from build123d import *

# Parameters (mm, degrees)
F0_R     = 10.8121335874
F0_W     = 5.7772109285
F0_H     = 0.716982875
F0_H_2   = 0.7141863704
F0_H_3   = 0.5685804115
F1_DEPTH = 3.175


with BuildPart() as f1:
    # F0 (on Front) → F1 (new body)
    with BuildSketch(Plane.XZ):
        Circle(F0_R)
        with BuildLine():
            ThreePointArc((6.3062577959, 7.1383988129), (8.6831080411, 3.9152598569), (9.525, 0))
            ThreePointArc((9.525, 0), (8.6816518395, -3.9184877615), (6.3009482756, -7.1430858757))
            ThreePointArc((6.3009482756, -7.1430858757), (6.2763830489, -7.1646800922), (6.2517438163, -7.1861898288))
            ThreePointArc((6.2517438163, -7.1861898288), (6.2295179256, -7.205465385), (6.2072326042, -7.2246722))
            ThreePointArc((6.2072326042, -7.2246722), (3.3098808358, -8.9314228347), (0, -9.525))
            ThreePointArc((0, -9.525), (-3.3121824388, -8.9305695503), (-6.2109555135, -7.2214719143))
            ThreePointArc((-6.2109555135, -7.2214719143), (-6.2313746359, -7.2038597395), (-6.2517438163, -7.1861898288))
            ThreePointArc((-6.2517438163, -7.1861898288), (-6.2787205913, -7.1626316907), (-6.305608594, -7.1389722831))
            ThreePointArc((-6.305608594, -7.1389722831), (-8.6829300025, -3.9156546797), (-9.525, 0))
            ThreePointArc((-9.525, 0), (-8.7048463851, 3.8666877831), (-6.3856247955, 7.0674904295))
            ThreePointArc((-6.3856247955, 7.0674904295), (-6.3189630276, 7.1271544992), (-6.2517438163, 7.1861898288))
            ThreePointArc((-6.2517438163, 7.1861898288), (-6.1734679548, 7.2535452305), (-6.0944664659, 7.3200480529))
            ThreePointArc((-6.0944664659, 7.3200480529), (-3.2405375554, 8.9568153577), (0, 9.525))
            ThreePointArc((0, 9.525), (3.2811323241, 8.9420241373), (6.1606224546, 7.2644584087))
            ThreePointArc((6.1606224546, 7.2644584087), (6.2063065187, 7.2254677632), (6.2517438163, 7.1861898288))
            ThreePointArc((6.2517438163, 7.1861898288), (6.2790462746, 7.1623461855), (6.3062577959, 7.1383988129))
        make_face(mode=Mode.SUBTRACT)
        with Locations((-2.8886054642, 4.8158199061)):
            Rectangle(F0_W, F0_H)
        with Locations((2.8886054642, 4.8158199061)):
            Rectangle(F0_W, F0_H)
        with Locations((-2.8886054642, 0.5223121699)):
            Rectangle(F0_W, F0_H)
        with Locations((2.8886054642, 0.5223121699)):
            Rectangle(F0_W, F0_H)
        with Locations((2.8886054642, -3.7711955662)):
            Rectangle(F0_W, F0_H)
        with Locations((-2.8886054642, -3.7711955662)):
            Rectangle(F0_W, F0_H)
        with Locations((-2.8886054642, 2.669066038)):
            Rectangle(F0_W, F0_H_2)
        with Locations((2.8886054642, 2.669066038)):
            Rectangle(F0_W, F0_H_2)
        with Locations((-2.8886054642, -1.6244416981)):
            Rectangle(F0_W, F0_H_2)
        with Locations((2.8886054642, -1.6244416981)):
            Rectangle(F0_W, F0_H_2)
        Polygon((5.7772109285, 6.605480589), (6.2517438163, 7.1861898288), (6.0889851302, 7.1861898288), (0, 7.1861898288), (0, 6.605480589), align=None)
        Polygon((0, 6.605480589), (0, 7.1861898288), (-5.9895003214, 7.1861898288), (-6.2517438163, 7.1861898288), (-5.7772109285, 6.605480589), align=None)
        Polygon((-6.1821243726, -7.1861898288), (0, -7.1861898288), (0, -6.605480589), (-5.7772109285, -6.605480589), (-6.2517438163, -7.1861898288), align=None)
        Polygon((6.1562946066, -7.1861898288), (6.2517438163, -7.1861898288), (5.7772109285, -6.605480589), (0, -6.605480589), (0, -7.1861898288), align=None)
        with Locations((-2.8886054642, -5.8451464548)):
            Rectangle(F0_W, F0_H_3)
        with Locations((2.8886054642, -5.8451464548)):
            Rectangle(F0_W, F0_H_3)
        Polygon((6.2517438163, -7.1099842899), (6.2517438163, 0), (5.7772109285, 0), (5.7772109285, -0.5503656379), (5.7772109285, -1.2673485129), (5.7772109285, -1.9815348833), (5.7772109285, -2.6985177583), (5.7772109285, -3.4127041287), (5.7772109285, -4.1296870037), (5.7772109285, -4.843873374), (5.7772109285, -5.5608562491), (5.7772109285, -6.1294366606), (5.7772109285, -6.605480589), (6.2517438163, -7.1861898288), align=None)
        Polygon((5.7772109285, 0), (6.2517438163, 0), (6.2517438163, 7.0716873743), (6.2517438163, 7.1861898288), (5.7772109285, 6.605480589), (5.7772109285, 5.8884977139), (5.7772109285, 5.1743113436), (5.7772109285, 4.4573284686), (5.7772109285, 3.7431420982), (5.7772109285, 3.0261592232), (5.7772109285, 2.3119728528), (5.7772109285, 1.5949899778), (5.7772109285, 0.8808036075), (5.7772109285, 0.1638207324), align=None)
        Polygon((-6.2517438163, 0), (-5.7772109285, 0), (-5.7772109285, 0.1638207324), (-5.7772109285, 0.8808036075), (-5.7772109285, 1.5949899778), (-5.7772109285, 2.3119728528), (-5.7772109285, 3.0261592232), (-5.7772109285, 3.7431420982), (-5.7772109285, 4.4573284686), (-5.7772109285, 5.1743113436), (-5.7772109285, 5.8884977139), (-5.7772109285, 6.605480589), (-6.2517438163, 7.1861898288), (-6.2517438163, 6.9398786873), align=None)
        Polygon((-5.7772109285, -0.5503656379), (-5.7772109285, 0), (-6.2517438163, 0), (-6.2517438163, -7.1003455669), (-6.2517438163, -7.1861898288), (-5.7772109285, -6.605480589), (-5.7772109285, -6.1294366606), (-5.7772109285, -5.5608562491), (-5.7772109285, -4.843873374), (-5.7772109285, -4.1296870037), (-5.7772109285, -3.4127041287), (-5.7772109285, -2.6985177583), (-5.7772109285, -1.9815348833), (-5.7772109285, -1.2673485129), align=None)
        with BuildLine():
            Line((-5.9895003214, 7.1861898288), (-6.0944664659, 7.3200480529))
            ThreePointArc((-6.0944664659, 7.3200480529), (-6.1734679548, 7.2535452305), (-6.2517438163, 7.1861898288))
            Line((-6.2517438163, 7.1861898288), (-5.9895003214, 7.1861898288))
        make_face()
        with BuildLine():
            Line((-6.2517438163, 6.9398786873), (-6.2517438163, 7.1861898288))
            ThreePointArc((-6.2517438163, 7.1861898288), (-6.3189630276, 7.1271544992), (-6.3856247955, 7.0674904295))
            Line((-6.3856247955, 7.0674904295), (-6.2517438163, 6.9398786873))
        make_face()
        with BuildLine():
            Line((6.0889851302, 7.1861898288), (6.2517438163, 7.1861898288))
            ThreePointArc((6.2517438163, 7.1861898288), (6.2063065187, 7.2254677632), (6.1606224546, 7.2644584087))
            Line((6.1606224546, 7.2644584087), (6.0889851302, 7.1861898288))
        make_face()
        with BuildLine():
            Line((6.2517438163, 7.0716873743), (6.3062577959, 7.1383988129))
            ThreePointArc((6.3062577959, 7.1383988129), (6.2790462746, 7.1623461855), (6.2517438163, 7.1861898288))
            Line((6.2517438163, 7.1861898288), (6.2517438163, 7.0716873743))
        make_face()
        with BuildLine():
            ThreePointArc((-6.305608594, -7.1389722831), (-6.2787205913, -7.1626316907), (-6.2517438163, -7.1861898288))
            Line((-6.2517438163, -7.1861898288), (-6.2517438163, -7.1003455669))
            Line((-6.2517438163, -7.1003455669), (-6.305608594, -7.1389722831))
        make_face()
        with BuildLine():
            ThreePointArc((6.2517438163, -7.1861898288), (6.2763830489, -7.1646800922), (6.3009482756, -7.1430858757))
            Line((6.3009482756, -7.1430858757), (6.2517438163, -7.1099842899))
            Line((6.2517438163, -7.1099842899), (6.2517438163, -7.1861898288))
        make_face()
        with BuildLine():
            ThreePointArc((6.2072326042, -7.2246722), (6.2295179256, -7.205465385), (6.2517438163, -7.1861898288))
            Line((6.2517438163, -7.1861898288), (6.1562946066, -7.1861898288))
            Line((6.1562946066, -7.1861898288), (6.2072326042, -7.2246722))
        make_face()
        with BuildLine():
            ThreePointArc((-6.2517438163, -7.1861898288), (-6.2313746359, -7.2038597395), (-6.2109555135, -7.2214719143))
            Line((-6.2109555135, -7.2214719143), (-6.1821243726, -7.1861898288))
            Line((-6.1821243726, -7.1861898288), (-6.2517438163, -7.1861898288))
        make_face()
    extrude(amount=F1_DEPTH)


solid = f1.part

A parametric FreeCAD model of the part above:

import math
import FreeCAD as App
import Part
import Sketcher
Q = App.Units.Quantity


def add_polygon(sketch, points):
    """Adds a closed chain of lines whose ends are joined by coincident constraints."""
    first, n = sketch.GeometryCount, len(points)
    for a, b in zip(points, points[1:] + points[:1]):
        sketch.addGeometry(Part.LineSegment(App.Vector(*a, 0), App.Vector(*b, 0)), False)
    for i in range(n):
        sketch.addConstraint(Sketcher.Constraint("Coincident", first + i, 2, first + (i + 1) % n, 1))

doc = App.newDocument("Part")
params = doc.addObject("Spreadsheet::Sheet", "Params")
for row, (alias, value) in enumerate([
    ("sketch1_radius", "0.375 in"),
    ("pad1_length", "0.125 in"),
], start=1):
    params.set(f"A{row}", alias)
    params.set(f"B{row}", "=" + value)
    params.setAlias(f"B{row}", alias)

body = doc.addObject("PartDesign::Body", "Body")

sketch1 = body.newObject("Sketcher::SketchObject", "Sketch")
sketch1.AttachmentSupport = (doc.getObject("XZ_Plane"), [""])
sketch1.MapMode = "FlatFace"
sketch1.addGeometry(Part.Circle(App.Vector(0, 0, 0), App.Vector(0, 0, 1), 10.812), False)
sketch1.addGeometry(Part.LineSegment(App.Vector(-6.252, 6.94, 0), App.Vector(-6.252, -7.1, 0)), False)
sketch1.addGeometry(Part.LineSegment(App.Vector(-6.252, -7.1, 0), App.Vector(-6.306, -7.139, 0)), False)
sketch1.addGeometry(Part.ArcOfCircle(Part.Circle(App.Vector(0, 0, 0), App.Vector(0, 0, 1), 9.525), math.radians(180), math.radians(229)), False)
sketch1.addGeometry(Part.ArcOfCircle(Part.Circle(App.Vector(0, 0, 0), App.Vector(0, 0, 1), 9.525), math.radians(132), math.radians(180)), False)
sketch1.addGeometry(Part.LineSegment(App.Vector(-6.386, 7.067, 0), App.Vector(-6.252, 6.94, 0)), False)
sketch1.addGeometry(Part.LineSegment(App.Vector(-6.182, -7.186, 0), App.Vector(6.156, -7.186, 0)), False)
sketch1.addGeometry(Part.LineSegment(App.Vector(6.156, -7.186, 0), App.Vector(6.207, -7.225, 0)), False)
sketch1.addGeometry(Part.ArcOfCircle(Part.Circle(App.Vector(0, 0, 0), App.Vector(0, 0, 1), 9.525), math.radians(-90), math.radians(-49)), False)
sketch1.addGeometry(Part.ArcOfCircle(Part.Circle(App.Vector(0, 0, 0), App.Vector(0, 0, 1), 9.525), math.radians(-131), math.radians(-90)), False)
sketch1.addGeometry(Part.LineSegment(App.Vector(-6.211, -7.221, 0), App.Vector(-6.182, -7.186, 0)), False)
add_polygon(sketch1, [(-5.777, -6.129), (5.777, -6.129), (5.777, -6.605), (-5.777, -6.605)])
add_polygon(sketch1, [(-5.777, -4.13), (5.777, -4.13), (5.777, -5.561), (-5.777, -5.561)])
add_polygon(sketch1, [(-5.777, -1.982), (5.777, -1.982), (5.777, -3.413), (-5.777, -3.413)])
add_polygon(sketch1, [(-5.777, 0.164), (5.777, 0.164), (5.777, 0), (5.777, -1.267), (-5.777, -1.267)])
sketch1.addGeometry(Part.ArcOfCircle(Part.Circle(App.Vector(0, 0, 0), App.Vector(0, 0, 1), 9.525), math.radians(-49), math.radians(0)), False)
sketch1.addGeometry(Part.LineSegment(App.Vector(6.301, -7.143, 0), App.Vector(6.252, -7.11, 0)), False)
sketch1.addGeometry(Part.LineSegment(App.Vector(6.252, -7.11, 0), App.Vector(6.252, 7.072, 0)), False)
sketch1.addGeometry(Part.LineSegment(App.Vector(6.252, 7.072, 0), App.Vector(6.306, 7.138, 0)), False)
sketch1.addGeometry(Part.ArcOfCircle(Part.Circle(App.Vector(0, 0, 0), App.Vector(0, 0, 1), 9.525), math.radians(0), math.radians(49)), False)
add_polygon(sketch1, [(-5.777, 2.312), (5.777, 2.312), (5.777, 0.881), (-5.777, 0.881)])
add_polygon(sketch1, [(-5.777, 4.457), (5.777, 4.457), (5.777, 3.026), (-5.777, 3.026)])
add_polygon(sketch1, [(-5.777, 5.174), (-5.777, 6.605), (5.777, 6.605), (5.777, 5.174)])
sketch1.addGeometry(Part.ArcOfCircle(Part.Circle(App.Vector(0, 0, 0), App.Vector(0, 0, 1), 9.525), math.radians(50), math.radians(90)), False)
sketch1.addGeometry(Part.LineSegment(App.Vector(6.161, 7.264, 0), App.Vector(6.089, 7.186, 0)), False)
sketch1.addGeometry(Part.LineSegment(App.Vector(6.089, 7.186, 0), App.Vector(-5.99, 7.186, 0)), False)
sketch1.addGeometry(Part.LineSegment(App.Vector(-5.99, 7.186, 0), App.Vector(-6.094, 7.32, 0)), False)
sketch1.addGeometry(Part.ArcOfCircle(Part.Circle(App.Vector(0, 0, 0), App.Vector(0, 0, 1), 9.525), math.radians(90), math.radians(130)), False)
sketch1.addConstraint([
    Sketcher.Constraint("Coincident", 1, 2, 2, 1),
    Sketcher.Constraint("Coincident", 2, 2, 3, 2),
    Sketcher.Constraint("Tangent", 3, 1, 4, 2),
    Sketcher.Constraint("Coincident", 4, 1, 5, 1),
    Sketcher.Constraint("Coincident", 5, 2, 1, 1),
    Sketcher.Constraint("Coincident", 6, 2, 7, 1),
    Sketcher.Constraint("Coincident", 7, 2, 8, 2),
    Sketcher.Constraint("Tangent", 8, 1, 9, 2),
    Sketcher.Constraint("Coincident", 9, 1, 10, 1),
    Sketcher.Constraint("Coincident", 10, 2, 6, 1),
    Sketcher.Constraint("Coincident", 28, 1, 29, 1),
    Sketcher.Constraint("Coincident", 29, 2, 30, 1),
    Sketcher.Constraint("Coincident", 30, 2, 31, 1),
    Sketcher.Constraint("Coincident", 31, 2, 32, 2),
    Sketcher.Constraint("Tangent", 32, 1, 28, 2),
    Sketcher.Constraint("Coincident", 45, 1, 46, 1),
    Sketcher.Constraint("Coincident", 46, 2, 47, 1),
    Sketcher.Constraint("Coincident", 47, 2, 48, 1),
    Sketcher.Constraint("Coincident", 48, 2, 49, 2),
    Sketcher.Constraint("Tangent", 49, 1, 45, 2),
    Sketcher.Constraint("Vertical", 1),
    Sketcher.Constraint("Horizontal", 6),
    Sketcher.Constraint("Horizontal", 11),
    Sketcher.Constraint("Vertical", 12),
    Sketcher.Constraint("Horizontal", 13),
    Sketcher.Constraint("Vertical", 14),
    Sketcher.Constraint("Horizontal", 15),
    Sketcher.Constraint("Vertical", 16),
    Sketcher.Constraint("Horizontal", 17),
    Sketcher.Constraint("Vertical", 18),
    Sketcher.Constraint("Horizontal", 19),
    Sketcher.Constraint("Vertical", 20),
    Sketcher.Constraint("Horizontal", 21),
    Sketcher.Constraint("Vertical", 22),
    Sketcher.Constraint("Horizontal", 23),
    Sketcher.Constraint("Vertical", 24),
    Sketcher.Constraint("Vertical", 25),
    Sketcher.Constraint("Horizontal", 26),
    Sketcher.Constraint("Vertical", 27),
    Sketcher.Constraint("Vertical", 30),
    Sketcher.Constraint("Horizontal", 33),
    Sketcher.Constraint("Vertical", 34),
    Sketcher.Constraint("Horizontal", 35),
    Sketcher.Constraint("Vertical", 36),
    Sketcher.Constraint("Horizontal", 37),
    Sketcher.Constraint("Vertical", 38),
    Sketcher.Constraint("Horizontal", 39),
    Sketcher.Constraint("Vertical", 40),
    Sketcher.Constraint("Vertical", 41),
    Sketcher.Constraint("Horizontal", 42),
    Sketcher.Constraint("Vertical", 43),
    Sketcher.Constraint("Horizontal", 44),
    Sketcher.Constraint("Horizontal", 47),
    Sketcher.Constraint("Coincident", 0, 3, -1, 1),
    Sketcher.Constraint("Coincident", 3, 3, -1, 1),
    Sketcher.Constraint("Coincident", 8, 3, -1, 1),
    Sketcher.Constraint("Coincident", 28, 3, -1, 1),
    Sketcher.Constraint("Coincident", 45, 3, -1, 1),
    Sketcher.Constraint("Equal", 3, 4),
    Sketcher.Constraint("Equal", 4, 8),
    Sketcher.Constraint("Equal", 8, 9),
    Sketcher.Constraint("Equal", 9, 28),
    Sketcher.Constraint("Equal", 28, 32),
    Sketcher.Constraint("Equal", 32, 45),
    Sketcher.Constraint("Equal", 45, 49),
    Sketcher.Constraint("Symmetric", 12, 2, 41, 2, -1, 1),
    Sketcher.Constraint("PointOnObject", 3, 1, -1),
    Sketcher.Constraint("PointOnObject", 8, 1, -2),
    Sketcher.Constraint("PointOnObject", 24, 2, -1),
    Sketcher.Constraint("PointOnObject", 32, 1, -1),
    Sketcher.Constraint("PointOnObject", 49, 1, -2),
    Sketcher.Constraint("Parallel", 10, 31),
    Sketcher.Constraint("Vertical", 12, 2, 15, 2),
    Sketcher.Constraint("Vertical", 14, 2, 17, 2),
    Sketcher.Constraint("Vertical", 16, 2, 19, 2),
    Sketcher.Constraint("Vertical", 18, 2, 21, 2),
    Sketcher.Constraint("Vertical", 20, 2, 23, 2),
    Sketcher.Constraint("Vertical", 22, 2, 26, 2),
    Sketcher.Constraint("Vertical", 25, 2, 33, 2),
    Sketcher.Constraint("Vertical", 27, 2, 35, 2),
    Sketcher.Constraint("Vertical", 34, 2, 37, 2),
    Sketcher.Constraint("Vertical", 36, 2, 39, 2),
    Sketcher.Constraint("Vertical", 40, 2, 41, 2),
    Sketcher.Constraint("Vertical", 38, 2, 42, 2),
    Sketcher.Constraint("Equal", 18, 20),
    Sketcher.Constraint("Equal", 22, 27),
    Sketcher.Constraint("Equal", 27, 34),
    Sketcher.Constraint("Equal", 36, 38),
    Sketcher.Constraint("Equal", 40, 41),
    Sketcher.Constraint("Radius", 3, Q("0.375 in")),
    Sketcher.Constraint("Diameter", 0, 21.624267),
    Sketcher.Constraint("DistanceY", 12, 2, 20, 2, Q("0.1256999 in")),
    Sketcher.Constraint("DistanceY", 43, 2, 30, 2, Q("0.0746998 in")),
    Sketcher.Constraint("DistanceX", 6, 1, 6, 2, 12.338419),
    Sketcher.Constraint("DistanceX", 11, 1, 11, 2, 11.554422),
    Sketcher.Constraint("DistanceY", 16, 2, 16, 1, 1.431169),
    Sketcher.Constraint("DistanceY", 24, 2, 24, 1, 0.163821),
    Sketcher.Constraint("DistanceY", 30, 1, 30, 2, 14.181672),
    Sketcher.Constraint("DistanceY", -1, 1, 31, 2, 7.138399),
    Sketcher.Constraint("DistanceX", 47, 2, -1, 1, 5.9895),
    Sketcher.Constraint("DistanceY", 9, 1, 2, 2, 0.0825),
    Sketcher.Constraint("DistanceY", 11, 2, 19, 2, 4.147902),
    Sketcher.Constraint("DistanceY", 28, 1, 29, 2, 0.033102),
    Sketcher.Constraint("DistanceY", 41, 2, 5, 2, 0.334398),
    Sketcher.Constraint("DistanceY", 4, 1, 47, 2, 0.118699),
    Sketcher.Constraint("Distance", 7, 0.06384),
    Sketcher.Constraint("DistanceX", 47, 2, 47, 1, 12.078485),
    Sketcher.Constraint("DistanceY", 1, 2, 1, 1, 14.040224),
    Sketcher.Constraint("DistanceX", 2, 2, -1, 1, 6.305609),
    Sketcher.Constraint("DistanceY", -1, 1, 4, 1, 7.06749),
    Sketcher.Constraint("DistanceY", -1, 1, 5, 2, 6.939879),
    Sketcher.Constraint("DistanceY", 6, 2, -1, 1, 7.18619),
    Sketcher.Constraint("DistanceY", -1, 1, 37, 2, 4.457328),
    Sketcher.Constraint("DistanceY", -1, 1, 45, 1, 7.264458),
    Sketcher.Constraint("DistanceY", -1, 1, 48, 2, 7.320048),
    Sketcher.Constraint("DistanceX", 4, 1, 5, 2, 0.133881),
    Sketcher.Constraint("DistanceX", 9, 1, 10, 2, 0.028831),
    Sketcher.Constraint("DistanceY", 11, 2, 15, 2, 1.99975),
    Sketcher.Constraint("DistanceY", 25, 2, 33, 2, 3.579321),
])
sketch1.setExpression("Constraints[118]", "Params.sketch1_radius")
pad1 = body.newObject("PartDesign::Pad", "Pad")
pad1.Profile = sketch1
pad1.setExpression("Length", "Params.pad1_length")

doc.recompute()
